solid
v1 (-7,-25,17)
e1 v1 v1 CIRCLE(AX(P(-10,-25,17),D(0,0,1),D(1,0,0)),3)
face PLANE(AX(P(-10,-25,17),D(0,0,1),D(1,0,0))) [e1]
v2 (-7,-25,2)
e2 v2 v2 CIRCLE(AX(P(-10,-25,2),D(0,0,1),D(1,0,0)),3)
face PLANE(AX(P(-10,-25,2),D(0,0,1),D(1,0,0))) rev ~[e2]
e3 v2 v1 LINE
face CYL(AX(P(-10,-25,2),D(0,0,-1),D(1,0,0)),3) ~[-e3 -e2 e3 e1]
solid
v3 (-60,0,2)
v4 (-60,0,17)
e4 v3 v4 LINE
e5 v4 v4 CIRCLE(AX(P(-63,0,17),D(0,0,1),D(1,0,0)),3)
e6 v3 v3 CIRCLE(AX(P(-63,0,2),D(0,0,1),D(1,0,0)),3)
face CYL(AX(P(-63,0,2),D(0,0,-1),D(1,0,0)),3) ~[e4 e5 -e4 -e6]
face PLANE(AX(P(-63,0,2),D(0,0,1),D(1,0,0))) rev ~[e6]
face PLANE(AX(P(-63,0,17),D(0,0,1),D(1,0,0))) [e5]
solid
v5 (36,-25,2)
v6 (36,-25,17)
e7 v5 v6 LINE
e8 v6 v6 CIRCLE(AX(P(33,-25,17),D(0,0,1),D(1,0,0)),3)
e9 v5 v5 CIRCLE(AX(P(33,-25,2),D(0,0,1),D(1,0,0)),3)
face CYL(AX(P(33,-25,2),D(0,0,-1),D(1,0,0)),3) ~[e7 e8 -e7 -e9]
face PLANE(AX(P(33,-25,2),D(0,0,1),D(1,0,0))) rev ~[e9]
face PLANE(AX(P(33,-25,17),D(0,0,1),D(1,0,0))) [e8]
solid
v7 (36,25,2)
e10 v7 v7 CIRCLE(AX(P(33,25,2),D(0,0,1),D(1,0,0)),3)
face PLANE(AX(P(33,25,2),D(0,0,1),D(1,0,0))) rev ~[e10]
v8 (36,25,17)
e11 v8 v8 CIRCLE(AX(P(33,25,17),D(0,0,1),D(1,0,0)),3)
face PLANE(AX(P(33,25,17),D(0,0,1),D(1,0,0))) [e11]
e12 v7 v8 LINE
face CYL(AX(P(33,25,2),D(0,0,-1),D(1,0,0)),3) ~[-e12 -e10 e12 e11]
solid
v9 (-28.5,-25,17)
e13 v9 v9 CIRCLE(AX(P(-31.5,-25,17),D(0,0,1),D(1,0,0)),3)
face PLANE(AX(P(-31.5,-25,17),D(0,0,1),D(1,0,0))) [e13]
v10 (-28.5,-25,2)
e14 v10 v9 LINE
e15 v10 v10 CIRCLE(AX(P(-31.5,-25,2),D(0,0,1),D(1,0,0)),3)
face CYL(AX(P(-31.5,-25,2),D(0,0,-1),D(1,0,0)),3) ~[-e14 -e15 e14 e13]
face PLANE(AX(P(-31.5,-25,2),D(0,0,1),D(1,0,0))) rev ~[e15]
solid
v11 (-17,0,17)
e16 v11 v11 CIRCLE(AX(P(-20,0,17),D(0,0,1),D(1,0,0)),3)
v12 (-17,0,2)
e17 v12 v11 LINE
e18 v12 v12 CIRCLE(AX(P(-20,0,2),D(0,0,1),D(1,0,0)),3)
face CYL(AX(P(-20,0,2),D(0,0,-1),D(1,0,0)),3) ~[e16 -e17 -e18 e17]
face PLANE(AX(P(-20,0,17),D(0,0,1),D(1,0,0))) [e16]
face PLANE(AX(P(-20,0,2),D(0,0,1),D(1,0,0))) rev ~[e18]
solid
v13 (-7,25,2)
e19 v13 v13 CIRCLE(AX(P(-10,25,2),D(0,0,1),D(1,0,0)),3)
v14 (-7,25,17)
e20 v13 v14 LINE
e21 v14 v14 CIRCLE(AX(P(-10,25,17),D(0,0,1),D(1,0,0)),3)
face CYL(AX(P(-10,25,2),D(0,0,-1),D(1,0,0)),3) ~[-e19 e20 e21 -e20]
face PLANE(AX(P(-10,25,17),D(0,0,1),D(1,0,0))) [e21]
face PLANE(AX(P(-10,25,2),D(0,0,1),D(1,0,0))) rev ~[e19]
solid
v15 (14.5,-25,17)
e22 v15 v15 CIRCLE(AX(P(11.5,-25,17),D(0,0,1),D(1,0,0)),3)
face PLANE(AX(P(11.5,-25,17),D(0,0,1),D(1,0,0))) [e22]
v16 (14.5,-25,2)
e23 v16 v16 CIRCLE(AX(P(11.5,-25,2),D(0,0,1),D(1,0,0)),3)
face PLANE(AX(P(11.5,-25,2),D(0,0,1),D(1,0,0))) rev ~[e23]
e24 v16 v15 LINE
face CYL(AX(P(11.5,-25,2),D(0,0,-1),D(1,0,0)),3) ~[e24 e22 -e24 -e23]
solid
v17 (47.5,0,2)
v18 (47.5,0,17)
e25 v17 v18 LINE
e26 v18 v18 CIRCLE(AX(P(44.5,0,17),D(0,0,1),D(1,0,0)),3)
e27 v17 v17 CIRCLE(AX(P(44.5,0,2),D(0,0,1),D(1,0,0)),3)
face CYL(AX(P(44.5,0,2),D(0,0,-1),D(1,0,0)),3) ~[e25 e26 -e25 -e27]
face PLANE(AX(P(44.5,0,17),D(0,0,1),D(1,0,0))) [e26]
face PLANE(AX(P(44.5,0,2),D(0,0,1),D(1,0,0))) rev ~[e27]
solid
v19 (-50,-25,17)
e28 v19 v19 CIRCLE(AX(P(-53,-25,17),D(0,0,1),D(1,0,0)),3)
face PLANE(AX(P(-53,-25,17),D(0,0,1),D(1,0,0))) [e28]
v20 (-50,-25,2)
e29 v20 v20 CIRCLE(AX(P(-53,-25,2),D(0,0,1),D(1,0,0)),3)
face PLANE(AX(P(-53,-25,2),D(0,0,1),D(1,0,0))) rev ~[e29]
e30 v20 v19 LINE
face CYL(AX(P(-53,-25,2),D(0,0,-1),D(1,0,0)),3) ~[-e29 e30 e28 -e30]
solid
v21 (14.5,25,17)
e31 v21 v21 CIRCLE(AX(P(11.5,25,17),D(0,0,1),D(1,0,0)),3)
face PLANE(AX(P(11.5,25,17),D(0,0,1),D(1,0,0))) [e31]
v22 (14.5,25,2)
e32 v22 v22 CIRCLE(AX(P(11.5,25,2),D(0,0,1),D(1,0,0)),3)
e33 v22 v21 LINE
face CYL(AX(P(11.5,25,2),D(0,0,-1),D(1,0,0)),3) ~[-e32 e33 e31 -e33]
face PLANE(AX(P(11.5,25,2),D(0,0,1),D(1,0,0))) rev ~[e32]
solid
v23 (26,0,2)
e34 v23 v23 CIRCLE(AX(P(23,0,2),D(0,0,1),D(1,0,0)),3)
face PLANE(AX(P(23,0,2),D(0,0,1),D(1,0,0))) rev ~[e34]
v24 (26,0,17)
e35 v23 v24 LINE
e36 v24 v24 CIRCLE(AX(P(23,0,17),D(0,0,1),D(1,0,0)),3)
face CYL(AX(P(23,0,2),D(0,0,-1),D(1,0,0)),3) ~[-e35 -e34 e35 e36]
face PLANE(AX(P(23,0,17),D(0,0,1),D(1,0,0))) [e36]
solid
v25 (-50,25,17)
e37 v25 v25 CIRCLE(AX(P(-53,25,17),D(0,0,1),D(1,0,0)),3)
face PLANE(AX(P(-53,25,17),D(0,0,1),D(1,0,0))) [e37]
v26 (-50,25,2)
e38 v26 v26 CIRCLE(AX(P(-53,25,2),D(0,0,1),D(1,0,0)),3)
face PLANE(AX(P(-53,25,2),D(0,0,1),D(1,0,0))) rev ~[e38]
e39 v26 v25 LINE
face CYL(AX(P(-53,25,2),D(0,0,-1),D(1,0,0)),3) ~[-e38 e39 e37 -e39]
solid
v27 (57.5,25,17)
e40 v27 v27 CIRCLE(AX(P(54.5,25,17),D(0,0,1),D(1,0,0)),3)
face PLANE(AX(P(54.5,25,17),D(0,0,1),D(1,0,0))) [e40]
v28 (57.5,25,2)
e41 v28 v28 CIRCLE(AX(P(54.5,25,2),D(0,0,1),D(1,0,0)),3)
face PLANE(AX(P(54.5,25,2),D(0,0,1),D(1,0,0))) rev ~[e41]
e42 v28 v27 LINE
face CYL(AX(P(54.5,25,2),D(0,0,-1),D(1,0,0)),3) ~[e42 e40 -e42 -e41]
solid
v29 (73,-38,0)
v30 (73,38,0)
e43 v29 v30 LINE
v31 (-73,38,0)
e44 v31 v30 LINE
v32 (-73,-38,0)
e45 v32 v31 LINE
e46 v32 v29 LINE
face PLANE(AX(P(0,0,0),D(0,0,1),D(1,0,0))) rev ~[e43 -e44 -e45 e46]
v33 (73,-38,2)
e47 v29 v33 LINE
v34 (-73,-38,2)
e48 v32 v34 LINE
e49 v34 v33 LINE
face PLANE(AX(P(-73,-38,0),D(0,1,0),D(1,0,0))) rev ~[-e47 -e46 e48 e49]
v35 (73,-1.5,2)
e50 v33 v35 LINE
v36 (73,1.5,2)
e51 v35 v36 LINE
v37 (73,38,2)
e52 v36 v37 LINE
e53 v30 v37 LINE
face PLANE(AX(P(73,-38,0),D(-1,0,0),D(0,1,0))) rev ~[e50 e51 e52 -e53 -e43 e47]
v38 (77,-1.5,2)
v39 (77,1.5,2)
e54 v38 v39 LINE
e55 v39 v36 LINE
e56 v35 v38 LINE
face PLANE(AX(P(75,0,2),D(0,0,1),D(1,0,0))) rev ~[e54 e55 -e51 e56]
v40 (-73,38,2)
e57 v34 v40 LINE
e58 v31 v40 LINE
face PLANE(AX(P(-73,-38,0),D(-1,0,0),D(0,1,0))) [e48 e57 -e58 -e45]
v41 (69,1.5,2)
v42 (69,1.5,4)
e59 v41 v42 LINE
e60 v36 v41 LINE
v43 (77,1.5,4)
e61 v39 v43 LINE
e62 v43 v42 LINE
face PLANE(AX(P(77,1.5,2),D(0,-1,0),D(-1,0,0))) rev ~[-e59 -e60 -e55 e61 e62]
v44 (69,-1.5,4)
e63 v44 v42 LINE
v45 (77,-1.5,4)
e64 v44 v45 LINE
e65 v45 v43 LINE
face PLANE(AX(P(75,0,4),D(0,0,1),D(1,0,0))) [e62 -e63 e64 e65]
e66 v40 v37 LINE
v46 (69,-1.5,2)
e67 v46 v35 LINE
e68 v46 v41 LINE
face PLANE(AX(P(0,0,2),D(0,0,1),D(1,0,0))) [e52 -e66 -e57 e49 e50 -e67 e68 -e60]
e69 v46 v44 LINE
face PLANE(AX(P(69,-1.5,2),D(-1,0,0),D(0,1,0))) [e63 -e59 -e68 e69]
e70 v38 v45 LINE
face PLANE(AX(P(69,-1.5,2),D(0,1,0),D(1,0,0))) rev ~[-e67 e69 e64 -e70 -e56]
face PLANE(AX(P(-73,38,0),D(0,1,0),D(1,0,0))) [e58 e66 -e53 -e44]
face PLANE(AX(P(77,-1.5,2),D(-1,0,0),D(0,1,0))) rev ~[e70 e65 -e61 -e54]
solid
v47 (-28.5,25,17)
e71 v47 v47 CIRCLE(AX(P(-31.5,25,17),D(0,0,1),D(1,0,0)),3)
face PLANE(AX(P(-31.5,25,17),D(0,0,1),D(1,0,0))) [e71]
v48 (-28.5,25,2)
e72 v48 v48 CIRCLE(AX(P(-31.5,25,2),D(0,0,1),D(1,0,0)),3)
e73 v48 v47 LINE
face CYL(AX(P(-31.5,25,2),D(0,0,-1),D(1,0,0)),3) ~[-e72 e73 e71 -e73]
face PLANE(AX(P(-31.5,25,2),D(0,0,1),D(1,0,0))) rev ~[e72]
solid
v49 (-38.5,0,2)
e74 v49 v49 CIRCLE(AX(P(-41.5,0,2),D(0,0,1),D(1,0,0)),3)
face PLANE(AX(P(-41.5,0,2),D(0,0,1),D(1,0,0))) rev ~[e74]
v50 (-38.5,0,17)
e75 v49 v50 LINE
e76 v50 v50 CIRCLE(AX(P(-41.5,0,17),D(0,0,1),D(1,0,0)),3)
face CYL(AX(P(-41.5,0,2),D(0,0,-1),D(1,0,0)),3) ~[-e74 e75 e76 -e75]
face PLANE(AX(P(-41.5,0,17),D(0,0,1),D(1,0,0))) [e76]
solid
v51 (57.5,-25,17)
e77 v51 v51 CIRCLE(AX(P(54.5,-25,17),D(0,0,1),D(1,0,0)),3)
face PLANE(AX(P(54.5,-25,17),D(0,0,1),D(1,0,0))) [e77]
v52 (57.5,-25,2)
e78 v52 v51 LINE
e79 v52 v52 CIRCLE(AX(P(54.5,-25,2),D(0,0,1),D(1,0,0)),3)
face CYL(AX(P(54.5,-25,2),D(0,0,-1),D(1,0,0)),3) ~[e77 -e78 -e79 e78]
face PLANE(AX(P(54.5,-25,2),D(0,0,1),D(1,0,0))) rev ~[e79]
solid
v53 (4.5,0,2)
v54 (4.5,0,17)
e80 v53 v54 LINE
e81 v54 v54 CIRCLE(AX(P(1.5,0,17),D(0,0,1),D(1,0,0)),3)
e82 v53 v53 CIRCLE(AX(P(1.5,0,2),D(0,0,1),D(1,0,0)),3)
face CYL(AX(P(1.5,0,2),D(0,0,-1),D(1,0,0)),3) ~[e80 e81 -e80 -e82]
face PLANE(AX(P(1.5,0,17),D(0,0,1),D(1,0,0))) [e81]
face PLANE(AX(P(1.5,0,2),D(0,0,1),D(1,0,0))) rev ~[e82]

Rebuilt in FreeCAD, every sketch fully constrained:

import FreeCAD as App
import Part
import Sketcher

V = App.Vector
Q = App.Units.Quantity


def add_polygon(sketch, points):
    """Adds a closed chain of lines whose ends are joined by coincident constraints."""
    first, n = sketch.GeometryCount, len(points)
    for a, b in zip(points, points[1:] + points[:1]):
        sketch.addGeometry(Part.LineSegment(App.Vector(*a, 0), App.Vector(*b, 0)), False)
    for i in range(n):
        sketch.addConstraint(Sketcher.Constraint("Coincident", first + i, 2, first + (i + 1) % n, 1))

doc = App.newDocument("Part")
body = doc.addObject("PartDesign::Body", "Body")

# Sketch on XY plane
sketch1 = body.newObject("Sketcher::SketchObject", "Sketch")
sketch1.AttachmentSupport = (doc.getObject("XY_Plane"), [""])
sketch1.MapMode = "FlatFace"
add_polygon(sketch1, [(-73, 38), (-73, -38), (73, -38), (73, 38)])  # lines 0-3
sketch1.addConstraint(Sketcher.Constraint("Vertical", 0))
sketch1.addConstraint(Sketcher.Constraint("Horizontal", 1))
sketch1.addConstraint(Sketcher.Constraint("Vertical", 2))
sketch1.addConstraint(Sketcher.Constraint("Horizontal", 3))
sketch1.addConstraint(Sketcher.Constraint("Symmetric", 0, 2, 2, 2, -1, 1))
sketch1.addConstraint(Sketcher.Constraint("DistanceX", 1, 1, 1, 2, Q("146 mm")))
sketch1.addConstraint(Sketcher.Constraint("DistanceY", 0, 2, 0, 1, Q("76 mm")))
pad1 = body.newObject("PartDesign::Pad", "Pad")
pad1.Profile = sketch1
pad1.Length = 2

# Sketch on XY plane
sketch2 = body.newObject("Sketcher::SketchObject", "Sketch001")
sketch2.AttachmentSupport = (doc.getObject("XY_Plane"), [""])
sketch2.MapMode = "FlatFace"
sketch2.AttachmentOffset = App.Placement(V(0, 0, 2), App.Rotation())
add_polygon(sketch2, [(77, -1.5), (77, 1.5), (69, 1.5), (69, -1.5)])  # lines 0-3
sketch2.addConstraint(Sketcher.Constraint("Vertical", 0))
sketch2.addConstraint(Sketcher.Constraint("Horizontal", 1))
sketch2.addConstraint(Sketcher.Constraint("Vertical", 2))
sketch2.addConstraint(Sketcher.Constraint("Horizontal", 3))
sketch2.addConstraint(Sketcher.Constraint("DistanceX", 1, 2, 1, 1, Q("8 mm")))
sketch2.addConstraint(Sketcher.Constraint("DistanceY", 0, 1, 0, 2, Q("3 mm")))
sketch2.addConstraint(Sketcher.Constraint("DistanceX", -1, 1, 0, 2, Q("77 mm")))
sketch2.addConstraint(Sketcher.Constraint("DistanceY", -1, 1, 0, 2, Q("1.5 mm")))
pad2 = body.newObject("PartDesign::Pad", "Pad001")
pad2.Profile = sketch2
pad2.Length = 2
body2 = doc.addObject("PartDesign::Body", "Body001")
body2.AllowCompound = True

# Sketch on XY plane
sketch3 = body2.newObject("Sketcher::SketchObject", "Sketch002")
sketch3.AttachmentSupport = (doc.getObject("XY_Plane001"), [""])
sketch3.MapMode = "FlatFace"
sketch3.AttachmentOffset = App.Placement(V(0, 0, 2), App.Rotation())
sketch3.addGeometry(Part.Circle(V(-53, 25, 0), V(0, 0, 1), 3), False)
sketch3.addGeometry(Part.Circle(V(-31.5, 25, 0), V(0, 0, 1), 3), False)
sketch3.addGeometry(Part.Circle(V(-10, 25, 0), V(0, 0, 1), 3), False)
sketch3.addGeometry(Part.Circle(V(11.5, 25, 0), V(0, 0, 1), 3), False)
sketch3.addGeometry(Part.Circle(V(33, 25, 0), V(0, 0, 1), 3), False)
sketch3.addGeometry(Part.Circle(V(54.5, 25, 0), V(0, 0, 1), 3), False)
sketch3.addGeometry(Part.Circle(V(54.5, -25, 0), V(0, 0, 1), 3), False)
sketch3.addGeometry(Part.Circle(V(33, -25, 0), V(0, 0, 1), 3), False)
sketch3.addGeometry(Part.Circle(V(11.5, -25, 0), V(0, 0, 1), 3), False)
sketch3.addGeometry(Part.Circle(V(-10, -25, 0), V(0, 0, 1), 3), False)
sketch3.addGeometry(Part.Circle(V(-31.5, -25, 0), V(0, 0, 1), 3), False)
sketch3.addGeometry(Part.Circle(V(-53, -25, 0), V(0, 0, 1), 3), False)
sketch3.addConstraint(Sketcher.Constraint("Equal", 0, 1))
sketch3.addConstraint(Sketcher.Constraint("Equal", 1, 2))
sketch3.addConstraint(Sketcher.Constraint("Equal", 2, 3))
sketch3.addConstraint(Sketcher.Constraint("Equal", 3, 4))
sketch3.addConstraint(Sketcher.Constraint("Equal", 4, 5))
sketch3.addConstraint(Sketcher.Constraint("Equal", 5, 6))
sketch3.addConstraint(Sketcher.Constraint("Equal", 6, 7))
sketch3.addConstraint(Sketcher.Constraint("Equal", 7, 8))
sketch3.addConstraint(Sketcher.Constraint("Equal", 8, 9))
sketch3.addConstraint(Sketcher.Constraint("Equal", 9, 10))
sketch3.addConstraint(Sketcher.Constraint("Equal", 10, 11))
sketch3.addConstraint(Sketcher.Constraint("Symmetric", 5, 3, 6, 3, -1))
sketch3.addConstraint(Sketcher.Constraint("Symmetric", 4, 3, 7, 3, -1))
sketch3.addConstraint(Sketcher.Constraint("Symmetric", 3, 3, 8, 3, -1))
sketch3.addConstraint(Sketcher.Constraint("Symmetric", 2, 3, 9, 3, -1))
sketch3.addConstraint(Sketcher.Constraint("Symmetric", 1, 3, 10, 3, -1))
sketch3.addConstraint(Sketcher.Constraint("Symmetric", 0, 3, 11, 3, -1))
sketch3.addConstraint(Sketcher.Constraint("Horizontal", 0, 3, 1, 3))
sketch3.addConstraint(Sketcher.Constraint("Horizontal", 1, 3, 2, 3))
sketch3.addConstraint(Sketcher.Constraint("Horizontal", 2, 3, 3, 3))
sketch3.addConstraint(Sketcher.Constraint("Horizontal", 3, 3, 4, 3))
sketch3.addConstraint(Sketcher.Constraint("Horizontal", 4, 3, 5, 3))
sketch3.addConstraint(Sketcher.Constraint("Diameter", 0, Q("6 mm")))
sketch3.addConstraint(Sketcher.Constraint("DistanceX", 0, 3, -1, 1, Q("53 mm")))
sketch3.addConstraint(Sketcher.Constraint("DistanceY", -1, 1, 0, 3, Q("25 mm")))
sketch3.addConstraint(Sketcher.Constraint("DistanceX", 2, 3, -1, 1, Q("10 mm")))
sketch3.addConstraint(Sketcher.Constraint("DistanceX", -1, 1, 4, 3, Q("33 mm")))
sketch3.addConstraint(Sketcher.Constraint("DistanceX", 1, 3, 3, 3, Q("43 mm")))
sketch3.addConstraint(Sketcher.Constraint("DistanceX", 3, 3, 5, 3, Q("43 mm")))
sketch3.addConstraint(Sketcher.Constraint("DistanceX", 1, 3, -1, 1, Q("31.5 mm")))
pad3 = body2.newObject("PartDesign::Pad", "Pad002")
pad3.Profile = sketch3
pad3.Length = 15
body3 = doc.addObject("PartDesign::Body", "Body002")
body3.AllowCompound = True

# Sketch on XY plane
sketch4 = body3.newObject("Sketcher::SketchObject", "Sketch003")
sketch4.AttachmentSupport = (doc.getObject("XY_Plane002"), [""])
sketch4.MapMode = "FlatFace"
sketch4.AttachmentOffset = App.Placement(V(0, 0, 2), App.Rotation())
sketch4.addGeometry(Part.Circle(V(-63, 0, 0), V(0, 0, 1), 3), False)
sketch4.addGeometry(Part.Circle(V(-41.5, 0, 0), V(0, 0, 1), 3), False)
sketch4.addGeometry(Part.Circle(V(-20, 0, 0), V(0, 0, 1), 3), False)
sketch4.addGeometry(Part.Circle(V(1.5, 0, 0), V(0, 0, 1), 3), False)
sketch4.addGeometry(Part.Circle(V(23, 0, 0), V(0, 0, 1), 3), False)
sketch4.addGeometry(Part.Circle(V(44.5, 0, 0), V(0, 0, 1), 3), False)
sketch4.addConstraint(Sketcher.Constraint("Equal", 0, 1))
sketch4.addConstraint(Sketcher.Constraint("Equal", 1, 2))
sketch4.addConstraint(Sketcher.Constraint("Equal", 2, 3))
sketch4.addConstraint(Sketcher.Constraint("Equal", 3, 4))
sketch4.addConstraint(Sketcher.Constraint("Equal", 4, 5))
sketch4.addConstraint(Sketcher.Constraint("PointOnObject", 0, 3, -1))
sketch4.addConstraint(Sketcher.Constraint("PointOnObject", 1, 3, -1))
sketch4.addConstraint(Sketcher.Constraint("PointOnObject", 2, 3, -1))
sketch4.addConstraint(Sketcher.Constraint("PointOnObject", 3, 3, -1))
sketch4.addConstraint(Sketcher.Constraint("PointOnObject", 4, 3, -1))
sketch4.addConstraint(Sketcher.Constraint("PointOnObject", 5, 3, -1))
sketch4.addConstraint(Sketcher.Constraint("Diameter", 0, Q("6 mm")))
sketch4.addConstraint(Sketcher.Constraint("DistanceX", 0, 3, -1, 1, Q("63 mm")))
sketch4.addConstraint(Sketcher.Constraint("DistanceX", 2, 3, -1, 1, Q("20 mm")))
sketch4.addConstraint(Sketcher.Constraint("DistanceX", -1, 1, 4, 3, Q("23 mm")))
sketch4.addConstraint(Sketcher.Constraint("DistanceX", 1, 3, 3, 3, Q("43 mm")))
sketch4.addConstraint(Sketcher.Constraint("DistanceX", 3, 3, 5, 3, Q("43 mm")))
sketch4.addConstraint(Sketcher.Constraint("DistanceX", 1, 3, -1, 1, Q("41.5 mm")))
pad4 = body3.newObject("PartDesign::Pad", "Pad003")
pad4.Profile = sketch4
pad4.Length = 15

doc.recompute()
